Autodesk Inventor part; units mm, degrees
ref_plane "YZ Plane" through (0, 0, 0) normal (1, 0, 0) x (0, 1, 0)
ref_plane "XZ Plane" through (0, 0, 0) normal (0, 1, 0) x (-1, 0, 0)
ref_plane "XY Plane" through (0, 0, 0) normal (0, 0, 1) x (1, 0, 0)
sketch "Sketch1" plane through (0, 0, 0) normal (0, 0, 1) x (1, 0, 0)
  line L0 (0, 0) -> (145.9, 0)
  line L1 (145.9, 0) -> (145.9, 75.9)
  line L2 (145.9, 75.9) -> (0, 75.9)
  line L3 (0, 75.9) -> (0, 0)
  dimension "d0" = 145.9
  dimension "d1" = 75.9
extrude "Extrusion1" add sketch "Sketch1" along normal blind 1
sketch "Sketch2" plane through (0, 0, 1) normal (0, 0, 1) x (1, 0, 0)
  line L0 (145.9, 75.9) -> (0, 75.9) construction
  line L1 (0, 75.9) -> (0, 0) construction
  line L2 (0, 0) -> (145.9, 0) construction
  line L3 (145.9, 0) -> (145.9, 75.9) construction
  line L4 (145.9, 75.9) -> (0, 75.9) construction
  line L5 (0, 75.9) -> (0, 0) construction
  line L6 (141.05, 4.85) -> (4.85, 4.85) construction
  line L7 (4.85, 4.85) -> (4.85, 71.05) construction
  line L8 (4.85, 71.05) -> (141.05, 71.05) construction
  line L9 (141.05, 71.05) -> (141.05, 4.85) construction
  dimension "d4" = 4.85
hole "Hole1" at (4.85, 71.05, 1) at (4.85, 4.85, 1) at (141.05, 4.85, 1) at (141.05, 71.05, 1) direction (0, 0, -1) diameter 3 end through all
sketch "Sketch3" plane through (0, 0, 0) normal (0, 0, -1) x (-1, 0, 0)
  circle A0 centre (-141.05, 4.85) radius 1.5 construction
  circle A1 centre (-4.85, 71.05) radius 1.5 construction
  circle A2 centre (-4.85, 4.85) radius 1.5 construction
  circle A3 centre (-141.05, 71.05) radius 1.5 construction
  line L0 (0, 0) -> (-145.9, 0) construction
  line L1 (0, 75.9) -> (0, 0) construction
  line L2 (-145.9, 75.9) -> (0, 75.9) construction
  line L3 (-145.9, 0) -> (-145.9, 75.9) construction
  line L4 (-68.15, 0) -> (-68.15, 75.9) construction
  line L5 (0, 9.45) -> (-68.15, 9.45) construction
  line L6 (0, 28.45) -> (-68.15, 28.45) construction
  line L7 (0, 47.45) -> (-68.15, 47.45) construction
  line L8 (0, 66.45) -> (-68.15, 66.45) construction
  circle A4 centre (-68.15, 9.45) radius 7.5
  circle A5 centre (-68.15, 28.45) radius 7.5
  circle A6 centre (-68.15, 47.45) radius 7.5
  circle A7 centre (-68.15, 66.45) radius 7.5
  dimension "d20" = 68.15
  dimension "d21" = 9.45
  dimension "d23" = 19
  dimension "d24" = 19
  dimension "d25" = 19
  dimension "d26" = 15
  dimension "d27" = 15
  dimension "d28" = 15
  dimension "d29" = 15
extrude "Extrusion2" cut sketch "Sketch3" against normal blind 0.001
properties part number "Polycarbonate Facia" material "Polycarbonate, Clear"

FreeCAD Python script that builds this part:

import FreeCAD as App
import Part
import Sketcher
from FreeCAD import Vector

doc = App.newDocument("Part")
body = doc.addObject("PartDesign::Body", "Body")

# Sketch on XY plane
sketch1 = doc.addObject("Sketcher::SketchObject", "Sketch")
body.addObject(sketch1)
sketch1.AttachmentSupport = (doc.XY_Plane, [""])
sketch1.MapMode = "FlatFace"
sketch1.addGeometry([
    Part.LineSegment(Vector(0, 76, 0), Vector(0, 0, 0)),
    Part.LineSegment(Vector(0, 0, 0), Vector(146, 0, 0)),
    Part.LineSegment(Vector(146, 0, 0), Vector(146, 76, 0)),
    Part.LineSegment(Vector(146, 76, 0), Vector(0, 76, 0)),
], False)
sketch1.addConstraint([
    Sketcher.Constraint("Coincident", 0, 2, 1, 1),
    Sketcher.Constraint("Coincident", 1, 2, 2, 1),
    Sketcher.Constraint("Coincident", 2, 2, 3, 1),
    Sketcher.Constraint("Coincident", 3, 2, 0, 1),
    Sketcher.Constraint("Vertical", 0),
    Sketcher.Constraint("Horizontal", 1),
    Sketcher.Constraint("Vertical", 2),
    Sketcher.Constraint("Horizontal", 3),
    Sketcher.Constraint("Coincident", 0, 2, -1, 1),
    Sketcher.Constraint("DistanceX", 1, 1, 1, 2, 145.9),
    Sketcher.Constraint("DistanceY", 0, 2, 0, 1, 75.9),
])
pad1 = doc.addObject("PartDesign::Pad", "Pad")
body.addObject(pad1)
pad1.Profile = sketch1
pad1.Length = 1

# Sketch on XY plane
sketch2 = doc.addObject("Sketcher::SketchObject", "Sketch001")
body.addObject(sketch2)
sketch2.AttachmentSupport = (doc.XY_Plane, [""])
sketch2.MapMode = "FlatFace"
sketch2.AttachmentOffset = App.Placement(Vector(0, 0, 1), App.Rotation())
sketch2.addGeometry([
    Part.Circle(Vector(4.8, 71, 0), Vector(0, 0, 1), 1.5),
    Part.Circle(Vector(4.8, 4.8, 0), Vector(0, 0, 1), 1.5),
    Part.Circle(Vector(141.1, 4.8, 0), Vector(0, 0, 1), 1.5),
    Part.Circle(Vector(141.1, 71, 0), Vector(0, 0, 1), 1.5),
], False)
sketch2.addConstraint([
    Sketcher.Constraint("Equal", 0, 1),
    Sketcher.Constraint("Equal", 1, 2),
    Sketcher.Constraint("Equal", 2, 3),
    Sketcher.Constraint("Horizontal", 1, 3, 2, 3),
    Sketcher.Constraint("Horizontal", 0, 3, 3, 3),
    Sketcher.Constraint("Vertical", 0, 3, 1, 3),
    Sketcher.Constraint("Vertical", 2, 3, 3, 3),
    Sketcher.Constraint("Diameter", 0, 3.0),
    Sketcher.Constraint("DistanceY", 1, 3, 0, 3, 66.2),
    Sketcher.Constraint("DistanceX", 1, 3, 2, 3, 136.2),
    Sketcher.Constraint("DistanceX", -1, 1, 0, 3, 4.85),
    Sketcher.Constraint("DistanceY", -1, 1, 0, 3, 71.05),
])
doc.recompute()
hole = doc.addObject("PartDesign::Hole", "Hole")
body.addObject(hole)
hole.Profile = sketch2
hole.ThreadType = "None"
hole.Diameter = 3
hole.DepthType = "ThroughAll"

# Sketch on XY plane
sketch3 = doc.addObject("Sketcher::SketchObject", "Sketch002")
body.addObject(sketch3)
sketch3.AttachmentSupport = (doc.XY_Plane, [""])
sketch3.MapMode = "FlatFace"
sketch3.addGeometry([
    Part.Circle(Vector(68, 9, 0), Vector(0, 0, 1), 8),
    Part.Circle(Vector(68, 28, 0), Vector(0, 0, 1), 8),
    Part.Circle(Vector(68, 47, 0), Vector(0, 0, 1), 8),
    Part.Circle(Vector(68, 66, 0), Vector(0, 0, 1), 8),
], False)
sketch3.addConstraint([
    Sketcher.Constraint("Equal", 0, 1),
    Sketcher.Constraint("Equal", 1, 2),
    Sketcher.Constraint("Equal", 2, 3),
    Sketcher.Constraint("Vertical", 0, 3, 1, 3),
    Sketcher.Constraint("Vertical", 1, 3, 2, 3),
    Sketcher.Constraint("Vertical", 2, 3, 3, 3),
    Sketcher.Constraint("Diameter", 0, 15.0),
    Sketcher.Constraint("DistanceY", 0, 3, 1, 3, 19.0),
    Sketcher.Constraint("DistanceY", 1, 3, 2, 3, 19.0),
    Sketcher.Constraint("DistanceY", 2, 3, 3, 3, 19.0),
    Sketcher.Constraint("DistanceX", -1, 1, 0, 3, 68.15),
    Sketcher.Constraint("DistanceY", -1, 1, 0, 3, 9.45),
])
pocket1 = doc.addObject("PartDesign::Pocket", "Pocket")
body.addObject(pocket1)
pocket1.Profile = sketch3
pocket1.Length = 0.001
pocket1.Reversed = True

doc.recompute()
